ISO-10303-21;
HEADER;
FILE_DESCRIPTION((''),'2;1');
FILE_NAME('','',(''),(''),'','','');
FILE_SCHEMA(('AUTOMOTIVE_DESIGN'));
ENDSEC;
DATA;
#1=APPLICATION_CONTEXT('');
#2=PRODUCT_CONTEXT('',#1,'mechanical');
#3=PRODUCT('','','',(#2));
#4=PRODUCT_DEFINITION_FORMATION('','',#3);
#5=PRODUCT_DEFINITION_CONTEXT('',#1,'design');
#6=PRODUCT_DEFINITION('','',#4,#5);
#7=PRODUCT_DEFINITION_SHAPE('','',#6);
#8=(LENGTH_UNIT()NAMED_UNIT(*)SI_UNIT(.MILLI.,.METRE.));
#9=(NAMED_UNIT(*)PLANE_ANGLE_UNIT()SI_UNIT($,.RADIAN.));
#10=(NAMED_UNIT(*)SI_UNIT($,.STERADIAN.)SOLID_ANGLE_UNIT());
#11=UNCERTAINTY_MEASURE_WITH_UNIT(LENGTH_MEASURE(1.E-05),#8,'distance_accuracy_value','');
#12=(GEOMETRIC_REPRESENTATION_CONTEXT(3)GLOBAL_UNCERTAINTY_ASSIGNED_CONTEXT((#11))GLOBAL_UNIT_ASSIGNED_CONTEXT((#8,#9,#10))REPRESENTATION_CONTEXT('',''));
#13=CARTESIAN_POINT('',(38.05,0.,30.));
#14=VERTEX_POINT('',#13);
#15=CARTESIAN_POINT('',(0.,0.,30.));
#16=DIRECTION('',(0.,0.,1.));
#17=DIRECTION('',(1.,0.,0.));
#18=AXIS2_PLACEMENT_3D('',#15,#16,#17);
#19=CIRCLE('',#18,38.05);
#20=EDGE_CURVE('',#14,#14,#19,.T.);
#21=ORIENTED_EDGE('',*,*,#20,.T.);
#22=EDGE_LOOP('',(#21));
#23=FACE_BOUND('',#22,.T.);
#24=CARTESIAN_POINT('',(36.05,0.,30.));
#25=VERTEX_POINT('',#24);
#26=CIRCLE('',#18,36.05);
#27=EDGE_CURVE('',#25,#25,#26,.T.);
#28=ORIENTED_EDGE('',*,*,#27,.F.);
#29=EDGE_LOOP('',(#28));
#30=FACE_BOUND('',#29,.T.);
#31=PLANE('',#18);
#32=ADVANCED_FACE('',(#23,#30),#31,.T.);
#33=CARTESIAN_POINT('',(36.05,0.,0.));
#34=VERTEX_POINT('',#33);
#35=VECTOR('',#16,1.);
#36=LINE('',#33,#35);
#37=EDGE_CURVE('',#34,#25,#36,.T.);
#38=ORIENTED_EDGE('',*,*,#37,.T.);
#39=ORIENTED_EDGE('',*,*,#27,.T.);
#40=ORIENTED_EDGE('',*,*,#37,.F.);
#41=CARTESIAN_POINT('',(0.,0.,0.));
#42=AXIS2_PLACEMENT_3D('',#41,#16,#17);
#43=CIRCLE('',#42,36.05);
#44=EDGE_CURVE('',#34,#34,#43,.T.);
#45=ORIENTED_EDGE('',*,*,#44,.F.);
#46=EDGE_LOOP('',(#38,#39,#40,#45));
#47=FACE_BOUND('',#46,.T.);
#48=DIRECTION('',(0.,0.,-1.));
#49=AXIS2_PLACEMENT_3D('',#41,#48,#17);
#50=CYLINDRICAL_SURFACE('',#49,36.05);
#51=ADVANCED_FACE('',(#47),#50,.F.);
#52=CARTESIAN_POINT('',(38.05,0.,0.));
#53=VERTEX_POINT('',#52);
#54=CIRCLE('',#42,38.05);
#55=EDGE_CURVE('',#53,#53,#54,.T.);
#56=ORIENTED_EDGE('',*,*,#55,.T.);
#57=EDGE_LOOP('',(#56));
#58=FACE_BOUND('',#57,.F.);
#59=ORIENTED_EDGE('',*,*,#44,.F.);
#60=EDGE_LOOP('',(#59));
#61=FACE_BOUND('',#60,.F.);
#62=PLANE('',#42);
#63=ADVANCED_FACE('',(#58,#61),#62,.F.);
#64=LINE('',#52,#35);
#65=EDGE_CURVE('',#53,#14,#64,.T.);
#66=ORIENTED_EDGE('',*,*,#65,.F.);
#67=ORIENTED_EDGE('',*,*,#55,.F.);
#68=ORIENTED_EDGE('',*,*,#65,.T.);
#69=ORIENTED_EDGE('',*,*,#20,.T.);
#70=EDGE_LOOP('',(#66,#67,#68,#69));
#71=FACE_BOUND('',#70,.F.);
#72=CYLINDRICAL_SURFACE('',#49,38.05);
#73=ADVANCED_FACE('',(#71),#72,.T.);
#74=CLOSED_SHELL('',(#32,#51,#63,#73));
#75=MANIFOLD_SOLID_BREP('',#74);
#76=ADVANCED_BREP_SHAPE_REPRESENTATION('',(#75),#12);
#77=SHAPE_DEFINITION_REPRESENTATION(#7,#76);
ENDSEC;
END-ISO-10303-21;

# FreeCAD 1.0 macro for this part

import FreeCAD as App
import Part
import Sketcher

doc = App.newDocument("Part")
params = doc.addObject("Spreadsheet::Sheet", "Params")
for row, (alias, value) in enumerate([
    ("sketch1_diameter", "76.1 mm"),
    ("sketch1_diameter2", "72.1 mm"),
    ("pad1_length", "30 mm"),
], start=1):
    params.set(f"A{row}", alias)
    params.set(f"B{row}", "=" + value)
    params.setAlias(f"B{row}", alias)

body = doc.addObject("PartDesign::Body", "Body")

# Sketch on XY plane
sketch1 = doc.addObject("Sketcher::SketchObject", "Sketch")
body.addObject(sketch1)
sketch1.AttachmentSupport = (doc.XY_Plane, [""])
sketch1.MapMode = "FlatFace"
sketch1.addGeometry(Part.Circle(App.Vector(0, 0, 0), App.Vector(0, 0, 1), 38), False)
sketch1.addGeometry(Part.Circle(App.Vector(0, 0, 0), App.Vector(0, 0, 1), 36), False)
sketch1.addConstraint(Sketcher.Constraint("Coincident", 0, 3, -1, 1))
sketch1.addConstraint(Sketcher.Constraint("Coincident", 1, 3, -1, 1))
sketch1.addConstraint(Sketcher.Constraint("Diameter", 0, 76.1))
sketch1.addConstraint(Sketcher.Constraint("Diameter", 1, 72.1))
sketch1.setExpression("Constraints[2]", "Params.sketch1_diameter")
sketch1.setExpression("Constraints[3]", "Params.sketch1_diameter2")
pad1 = doc.addObject("PartDesign::Pad", "Pad")
body.addObject(pad1)
pad1.Profile = sketch1
pad1.setExpression("Length", "Params.pad1_length")

doc.recompute()
